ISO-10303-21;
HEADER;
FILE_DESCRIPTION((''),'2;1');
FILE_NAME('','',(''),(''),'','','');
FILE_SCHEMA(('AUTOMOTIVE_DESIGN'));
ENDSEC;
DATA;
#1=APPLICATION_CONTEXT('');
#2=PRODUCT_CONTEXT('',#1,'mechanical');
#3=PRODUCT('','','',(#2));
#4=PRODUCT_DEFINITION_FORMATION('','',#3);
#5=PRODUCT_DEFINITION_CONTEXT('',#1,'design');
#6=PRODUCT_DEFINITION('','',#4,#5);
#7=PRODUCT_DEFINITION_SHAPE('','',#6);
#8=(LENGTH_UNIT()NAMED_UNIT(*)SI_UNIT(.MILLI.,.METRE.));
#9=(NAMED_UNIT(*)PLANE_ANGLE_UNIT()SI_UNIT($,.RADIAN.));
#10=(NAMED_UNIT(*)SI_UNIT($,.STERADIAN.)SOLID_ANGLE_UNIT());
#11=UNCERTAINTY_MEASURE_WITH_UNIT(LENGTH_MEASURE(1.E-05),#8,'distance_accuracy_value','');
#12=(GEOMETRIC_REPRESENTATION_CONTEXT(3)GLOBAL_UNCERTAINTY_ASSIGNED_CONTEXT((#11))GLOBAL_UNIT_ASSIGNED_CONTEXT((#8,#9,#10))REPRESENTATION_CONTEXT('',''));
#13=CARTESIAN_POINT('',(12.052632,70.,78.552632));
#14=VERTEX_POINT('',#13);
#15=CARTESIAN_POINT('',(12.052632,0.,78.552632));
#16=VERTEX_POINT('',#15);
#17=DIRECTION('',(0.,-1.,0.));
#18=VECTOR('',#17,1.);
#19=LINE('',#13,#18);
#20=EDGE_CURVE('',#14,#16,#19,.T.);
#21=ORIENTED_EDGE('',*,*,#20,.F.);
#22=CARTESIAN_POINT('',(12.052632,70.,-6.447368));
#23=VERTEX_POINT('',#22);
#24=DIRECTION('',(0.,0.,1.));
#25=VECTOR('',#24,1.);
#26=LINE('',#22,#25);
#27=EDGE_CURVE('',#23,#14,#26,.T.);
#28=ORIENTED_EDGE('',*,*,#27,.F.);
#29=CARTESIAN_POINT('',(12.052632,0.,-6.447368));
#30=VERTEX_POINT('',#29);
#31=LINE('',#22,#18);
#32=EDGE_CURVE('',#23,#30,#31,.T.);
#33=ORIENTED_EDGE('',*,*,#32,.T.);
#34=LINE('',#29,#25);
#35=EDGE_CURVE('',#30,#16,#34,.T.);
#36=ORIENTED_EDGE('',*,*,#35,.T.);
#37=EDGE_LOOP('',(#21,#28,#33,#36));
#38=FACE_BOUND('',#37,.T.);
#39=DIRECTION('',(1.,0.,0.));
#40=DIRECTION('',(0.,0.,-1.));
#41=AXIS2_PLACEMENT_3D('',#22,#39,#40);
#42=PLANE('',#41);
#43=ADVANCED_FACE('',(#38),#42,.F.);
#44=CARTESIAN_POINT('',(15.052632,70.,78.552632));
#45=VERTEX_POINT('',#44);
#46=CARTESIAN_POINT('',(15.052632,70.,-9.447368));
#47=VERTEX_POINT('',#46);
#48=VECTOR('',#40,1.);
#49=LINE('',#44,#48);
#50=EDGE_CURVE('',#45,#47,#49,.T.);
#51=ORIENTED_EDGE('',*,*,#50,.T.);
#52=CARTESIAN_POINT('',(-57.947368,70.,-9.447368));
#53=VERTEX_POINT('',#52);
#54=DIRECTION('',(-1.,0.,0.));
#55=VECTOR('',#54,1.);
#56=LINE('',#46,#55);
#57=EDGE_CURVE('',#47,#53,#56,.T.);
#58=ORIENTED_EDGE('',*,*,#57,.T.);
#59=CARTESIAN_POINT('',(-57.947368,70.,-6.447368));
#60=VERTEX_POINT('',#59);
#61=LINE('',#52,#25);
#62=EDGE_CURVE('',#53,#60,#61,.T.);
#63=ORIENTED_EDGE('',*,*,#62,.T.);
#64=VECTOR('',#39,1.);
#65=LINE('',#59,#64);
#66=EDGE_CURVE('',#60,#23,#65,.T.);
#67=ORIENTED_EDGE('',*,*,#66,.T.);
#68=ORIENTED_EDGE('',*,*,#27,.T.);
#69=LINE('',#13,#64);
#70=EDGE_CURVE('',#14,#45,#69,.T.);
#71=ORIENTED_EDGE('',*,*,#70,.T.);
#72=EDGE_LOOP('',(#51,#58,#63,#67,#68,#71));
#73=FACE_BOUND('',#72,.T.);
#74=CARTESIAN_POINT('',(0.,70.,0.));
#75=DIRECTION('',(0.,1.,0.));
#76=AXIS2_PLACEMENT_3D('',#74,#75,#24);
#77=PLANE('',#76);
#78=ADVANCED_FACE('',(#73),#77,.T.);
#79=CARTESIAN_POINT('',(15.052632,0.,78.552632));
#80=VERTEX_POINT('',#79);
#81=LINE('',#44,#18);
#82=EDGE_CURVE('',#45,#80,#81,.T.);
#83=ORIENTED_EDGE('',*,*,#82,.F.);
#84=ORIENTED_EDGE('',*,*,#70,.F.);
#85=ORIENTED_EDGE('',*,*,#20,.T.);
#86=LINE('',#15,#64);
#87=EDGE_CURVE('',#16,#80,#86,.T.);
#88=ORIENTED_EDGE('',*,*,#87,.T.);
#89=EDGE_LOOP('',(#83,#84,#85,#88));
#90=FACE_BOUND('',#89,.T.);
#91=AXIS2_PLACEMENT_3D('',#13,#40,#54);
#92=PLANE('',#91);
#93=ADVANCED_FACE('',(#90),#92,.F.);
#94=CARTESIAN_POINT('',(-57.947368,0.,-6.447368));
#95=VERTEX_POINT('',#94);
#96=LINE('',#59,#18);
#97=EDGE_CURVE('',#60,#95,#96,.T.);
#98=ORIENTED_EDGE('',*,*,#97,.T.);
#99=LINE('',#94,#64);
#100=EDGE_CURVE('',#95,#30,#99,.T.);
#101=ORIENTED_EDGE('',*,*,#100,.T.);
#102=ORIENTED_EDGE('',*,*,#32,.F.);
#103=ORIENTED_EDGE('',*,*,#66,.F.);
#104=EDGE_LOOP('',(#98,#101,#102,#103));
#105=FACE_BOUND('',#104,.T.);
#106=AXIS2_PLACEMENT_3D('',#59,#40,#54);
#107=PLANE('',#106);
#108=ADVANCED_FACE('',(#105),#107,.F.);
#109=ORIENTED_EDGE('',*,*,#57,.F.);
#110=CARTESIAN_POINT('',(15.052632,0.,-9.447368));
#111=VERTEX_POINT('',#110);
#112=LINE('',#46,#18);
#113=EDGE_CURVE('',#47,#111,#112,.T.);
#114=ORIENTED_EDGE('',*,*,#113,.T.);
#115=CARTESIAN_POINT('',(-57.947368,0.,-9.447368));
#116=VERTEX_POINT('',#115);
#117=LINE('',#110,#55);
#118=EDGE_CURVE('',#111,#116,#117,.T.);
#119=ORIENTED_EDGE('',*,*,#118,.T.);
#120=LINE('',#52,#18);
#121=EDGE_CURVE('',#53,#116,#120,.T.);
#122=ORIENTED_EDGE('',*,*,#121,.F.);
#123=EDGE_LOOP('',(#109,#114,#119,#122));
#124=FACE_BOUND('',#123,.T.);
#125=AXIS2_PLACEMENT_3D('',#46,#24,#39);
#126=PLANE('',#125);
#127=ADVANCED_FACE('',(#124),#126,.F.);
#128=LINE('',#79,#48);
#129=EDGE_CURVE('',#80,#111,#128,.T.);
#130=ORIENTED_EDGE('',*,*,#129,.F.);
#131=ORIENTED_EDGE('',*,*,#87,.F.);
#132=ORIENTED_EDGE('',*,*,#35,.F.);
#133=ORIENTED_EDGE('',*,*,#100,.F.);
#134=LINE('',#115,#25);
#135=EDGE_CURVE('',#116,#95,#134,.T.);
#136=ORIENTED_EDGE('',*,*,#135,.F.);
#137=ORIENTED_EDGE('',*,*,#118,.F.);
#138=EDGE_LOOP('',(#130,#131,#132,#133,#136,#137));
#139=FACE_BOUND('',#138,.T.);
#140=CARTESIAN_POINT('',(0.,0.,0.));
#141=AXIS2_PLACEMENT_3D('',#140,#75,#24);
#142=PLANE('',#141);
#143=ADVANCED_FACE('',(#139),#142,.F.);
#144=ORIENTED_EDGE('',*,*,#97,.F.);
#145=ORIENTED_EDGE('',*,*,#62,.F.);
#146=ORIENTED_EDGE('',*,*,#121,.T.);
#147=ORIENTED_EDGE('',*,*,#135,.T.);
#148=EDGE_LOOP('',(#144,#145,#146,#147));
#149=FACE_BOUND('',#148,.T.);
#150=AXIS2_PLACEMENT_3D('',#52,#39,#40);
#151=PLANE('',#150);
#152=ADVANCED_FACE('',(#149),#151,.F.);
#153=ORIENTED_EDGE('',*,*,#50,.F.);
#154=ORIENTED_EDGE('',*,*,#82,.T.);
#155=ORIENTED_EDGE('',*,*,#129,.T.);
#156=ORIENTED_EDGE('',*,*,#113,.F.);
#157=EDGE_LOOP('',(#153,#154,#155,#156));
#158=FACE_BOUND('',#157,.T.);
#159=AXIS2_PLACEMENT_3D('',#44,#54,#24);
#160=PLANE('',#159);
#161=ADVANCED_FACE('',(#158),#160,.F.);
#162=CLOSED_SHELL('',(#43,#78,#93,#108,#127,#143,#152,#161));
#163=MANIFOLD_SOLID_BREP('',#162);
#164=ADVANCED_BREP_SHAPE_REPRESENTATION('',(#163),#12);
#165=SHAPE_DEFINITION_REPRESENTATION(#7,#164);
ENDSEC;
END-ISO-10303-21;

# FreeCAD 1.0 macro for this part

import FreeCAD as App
import Part
import Sketcher

V = App.Vector
Q = App.Units.Quantity


def add_polygon(sketch, points):
    """Adds a closed chain of lines whose ends are joined by coincident constraints."""
    first, n = sketch.GeometryCount, len(points)
    for a, b in zip(points, points[1:] + points[:1]):
        sketch.addGeometry(Part.LineSegment(App.Vector(*a, 0), App.Vector(*b, 0)), False)
    for i in range(n):
        sketch.addConstraint(Sketcher.Constraint("Coincident", first + i, 2, first + (i + 1) % n, 1))

doc = App.newDocument("Part")
body = doc.addObject("PartDesign::Body", "Body")

sketch1 = body.newObject("Sketcher::SketchObject", "Sketch")
sketch1.AttachmentSupport = (doc.getObject("XZ_Plane"), [""])
sketch1.MapMode = "FlatFace"
add_polygon(sketch1, [(-57.9, -6.4), (12.1, -6.4), (12.1, 78.6), (15.1, 78.6), (15.1, -9.4), (-57.9, -9.4)])
sketch1.addConstraint([
    Sketcher.Constraint("Horizontal", 0),
    Sketcher.Constraint("Vertical", 1),
    Sketcher.Constraint("Horizontal", 2),
    Sketcher.Constraint("Vertical", 3),
    Sketcher.Constraint("Horizontal", 4),
    Sketcher.Constraint("Vertical", 5),
    Sketcher.Constraint("Equal", 2, 5),
    Sketcher.Constraint("DistanceX", 0, 1, 0, 2, Q("70 mm")),
    Sketcher.Constraint("DistanceX", 2, 1, 2, 2, Q("3 mm")),
    Sketcher.Constraint("DistanceY", 1, 1, 1, 2, Q("85 mm")),
    Sketcher.Constraint("DistanceX", -1, 1, 0, 2, Q("12.052632 mm")),
    Sketcher.Constraint("DistanceY", 0, 2, -1, 1, Q("6.447368 mm")),
])
pad1 = body.newObject("PartDesign::Pad", "Pad")
pad1.Profile = sketch1
pad1.Length = 70
pad1.Reversed = True

doc.recompute()
